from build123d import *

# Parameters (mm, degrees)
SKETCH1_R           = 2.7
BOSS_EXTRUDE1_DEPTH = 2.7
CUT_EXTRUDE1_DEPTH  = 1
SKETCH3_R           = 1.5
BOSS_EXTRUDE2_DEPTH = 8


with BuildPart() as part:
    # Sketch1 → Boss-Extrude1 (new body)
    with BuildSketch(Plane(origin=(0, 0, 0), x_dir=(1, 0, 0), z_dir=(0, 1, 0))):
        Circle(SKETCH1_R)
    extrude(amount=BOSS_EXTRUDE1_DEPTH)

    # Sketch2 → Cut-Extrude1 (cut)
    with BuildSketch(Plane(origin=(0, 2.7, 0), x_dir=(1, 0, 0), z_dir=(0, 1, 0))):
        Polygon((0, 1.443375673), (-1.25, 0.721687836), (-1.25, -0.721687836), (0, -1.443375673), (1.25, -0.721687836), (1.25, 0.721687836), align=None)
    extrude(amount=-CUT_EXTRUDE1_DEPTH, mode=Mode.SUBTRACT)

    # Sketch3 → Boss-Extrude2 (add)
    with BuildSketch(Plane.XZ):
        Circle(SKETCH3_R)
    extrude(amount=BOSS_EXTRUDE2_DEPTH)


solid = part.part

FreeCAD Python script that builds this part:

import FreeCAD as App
import Part
import Sketcher

V = App.Vector
Q = App.Units.Quantity


def add_polygon(sketch, points):
    """Adds a closed chain of lines whose ends are joined by coincident constraints."""
    first, n = sketch.GeometryCount, len(points)
    for a, b in zip(points, points[1:] + points[:1]):
        sketch.addGeometry(Part.LineSegment(App.Vector(*a, 0), App.Vector(*b, 0)), False)
    for i in range(n):
        sketch.addConstraint(Sketcher.Constraint("Coincident", first + i, 2, first + (i + 1) % n, 1))

doc = App.newDocument("Part")
params = doc.addObject("Spreadsheet::Sheet", "Params")
for row, (alias, value) in enumerate([
    ("sketch1_diameter", "5.4 mm"),
    ("pad1_length", "2.7 mm"),
    ("pocket1_length", "1 mm"),
    ("sketch3_diameter", "3 mm"),
    ("pad2_length", "8 mm"),
], start=1):
    params.set(f"A{row}", alias)
    params.set(f"B{row}", "=" + value)
    params.setAlias(f"B{row}", alias)

body = doc.addObject("PartDesign::Body", "Body")

# Sketch on XZ plane
sketch1 = doc.addObject("Sketcher::SketchObject", "Sketch")
body.addObject(sketch1)
sketch1.AttachmentSupport = (doc.XZ_Plane, [""])
sketch1.MapMode = "FlatFace"
sketch1.addGeometry(Part.Circle(V(0, 0, 0), V(0, 0, 1), 2.7), False)
sketch1.addConstraint([
    Sketcher.Constraint("Coincident", 0, 3, -1, 1),
    Sketcher.Constraint("Diameter", 0, Q("5.4 mm")),
])
sketch1.setExpression("Constraints[1]", "Params.sketch1_diameter")
pad1 = doc.addObject("PartDesign::Pad", "Pad")
body.addObject(pad1)
pad1.Profile = sketch1
pad1.setExpression("Length", "Params.pad1_length")
pad1.Reversed = True

# Sketch on XZ plane
sketch2 = doc.addObject("Sketcher::SketchObject", "Sketch001")
body.addObject(sketch2)
sketch2.AttachmentSupport = (doc.XZ_Plane, [""])
sketch2.MapMode = "FlatFace"
sketch2.AttachmentOffset = App.Placement(V(0, 0, -2.7), App.Rotation())
add_polygon(sketch2, [(0, -1.443376), (-1.25, -0.721688), (-1.25, 0.721688), (0, 1.443376), (1.25, 0.721688), (1.25, -0.721688)])  # lines 0-5
sketch2.addConstraint([
    Sketcher.Constraint("Vertical", 1),
    Sketcher.Constraint("Vertical", 4),
    Sketcher.Constraint("Symmetric", 0, 2, 3, 2, -1, 1),
    Sketcher.Constraint("Symmetric", 2, 2, 5, 2, -1, 1),
    Sketcher.Constraint("PointOnObject", 2, 2, -2),
    Sketcher.Constraint("Parallel", 2, 5),
    Sketcher.Constraint("Horizontal", 1, 2, 3, 2),
    Sketcher.Constraint("Angle", 0, Q("150 deg")),
    Sketcher.Constraint("DistanceX", 1, 2, 3, 2, Q("2.5 mm")),
    Sketcher.Constraint("DistanceY", 1, 1, 1, 2, Q("1.443376 mm")),
])
pocket1 = doc.addObject("PartDesign::Pocket", "Pocket")
body.addObject(pocket1)
pocket1.Profile = sketch2
pocket1.setExpression("Length", "Params.pocket1_length")
pocket1.Reversed = True

# Sketch on XZ plane
sketch3 = doc.addObject("Sketcher::SketchObject", "Sketch002")
body.addObject(sketch3)
sketch3.AttachmentSupport = (doc.XZ_Plane, [""])
sketch3.MapMode = "FlatFace"
sketch3.addGeometry(Part.Circle(V(0, 0, 0), V(0, 0, 1), 1.5), False)
sketch3.addConstraint([
    Sketcher.Constraint("Coincident", 0, 3, -1, 1),
    Sketcher.Constraint("Diameter", 0, Q("3 mm")),
])
sketch3.setExpression("Constraints[1]", "Params.sketch3_diameter")
pad2 = doc.addObject("PartDesign::Pad", "Pad001")
body.addObject(pad2)
pad2.Profile = sketch3
pad2.setExpression("Length", "Params.pad2_length")

doc.recompute()
